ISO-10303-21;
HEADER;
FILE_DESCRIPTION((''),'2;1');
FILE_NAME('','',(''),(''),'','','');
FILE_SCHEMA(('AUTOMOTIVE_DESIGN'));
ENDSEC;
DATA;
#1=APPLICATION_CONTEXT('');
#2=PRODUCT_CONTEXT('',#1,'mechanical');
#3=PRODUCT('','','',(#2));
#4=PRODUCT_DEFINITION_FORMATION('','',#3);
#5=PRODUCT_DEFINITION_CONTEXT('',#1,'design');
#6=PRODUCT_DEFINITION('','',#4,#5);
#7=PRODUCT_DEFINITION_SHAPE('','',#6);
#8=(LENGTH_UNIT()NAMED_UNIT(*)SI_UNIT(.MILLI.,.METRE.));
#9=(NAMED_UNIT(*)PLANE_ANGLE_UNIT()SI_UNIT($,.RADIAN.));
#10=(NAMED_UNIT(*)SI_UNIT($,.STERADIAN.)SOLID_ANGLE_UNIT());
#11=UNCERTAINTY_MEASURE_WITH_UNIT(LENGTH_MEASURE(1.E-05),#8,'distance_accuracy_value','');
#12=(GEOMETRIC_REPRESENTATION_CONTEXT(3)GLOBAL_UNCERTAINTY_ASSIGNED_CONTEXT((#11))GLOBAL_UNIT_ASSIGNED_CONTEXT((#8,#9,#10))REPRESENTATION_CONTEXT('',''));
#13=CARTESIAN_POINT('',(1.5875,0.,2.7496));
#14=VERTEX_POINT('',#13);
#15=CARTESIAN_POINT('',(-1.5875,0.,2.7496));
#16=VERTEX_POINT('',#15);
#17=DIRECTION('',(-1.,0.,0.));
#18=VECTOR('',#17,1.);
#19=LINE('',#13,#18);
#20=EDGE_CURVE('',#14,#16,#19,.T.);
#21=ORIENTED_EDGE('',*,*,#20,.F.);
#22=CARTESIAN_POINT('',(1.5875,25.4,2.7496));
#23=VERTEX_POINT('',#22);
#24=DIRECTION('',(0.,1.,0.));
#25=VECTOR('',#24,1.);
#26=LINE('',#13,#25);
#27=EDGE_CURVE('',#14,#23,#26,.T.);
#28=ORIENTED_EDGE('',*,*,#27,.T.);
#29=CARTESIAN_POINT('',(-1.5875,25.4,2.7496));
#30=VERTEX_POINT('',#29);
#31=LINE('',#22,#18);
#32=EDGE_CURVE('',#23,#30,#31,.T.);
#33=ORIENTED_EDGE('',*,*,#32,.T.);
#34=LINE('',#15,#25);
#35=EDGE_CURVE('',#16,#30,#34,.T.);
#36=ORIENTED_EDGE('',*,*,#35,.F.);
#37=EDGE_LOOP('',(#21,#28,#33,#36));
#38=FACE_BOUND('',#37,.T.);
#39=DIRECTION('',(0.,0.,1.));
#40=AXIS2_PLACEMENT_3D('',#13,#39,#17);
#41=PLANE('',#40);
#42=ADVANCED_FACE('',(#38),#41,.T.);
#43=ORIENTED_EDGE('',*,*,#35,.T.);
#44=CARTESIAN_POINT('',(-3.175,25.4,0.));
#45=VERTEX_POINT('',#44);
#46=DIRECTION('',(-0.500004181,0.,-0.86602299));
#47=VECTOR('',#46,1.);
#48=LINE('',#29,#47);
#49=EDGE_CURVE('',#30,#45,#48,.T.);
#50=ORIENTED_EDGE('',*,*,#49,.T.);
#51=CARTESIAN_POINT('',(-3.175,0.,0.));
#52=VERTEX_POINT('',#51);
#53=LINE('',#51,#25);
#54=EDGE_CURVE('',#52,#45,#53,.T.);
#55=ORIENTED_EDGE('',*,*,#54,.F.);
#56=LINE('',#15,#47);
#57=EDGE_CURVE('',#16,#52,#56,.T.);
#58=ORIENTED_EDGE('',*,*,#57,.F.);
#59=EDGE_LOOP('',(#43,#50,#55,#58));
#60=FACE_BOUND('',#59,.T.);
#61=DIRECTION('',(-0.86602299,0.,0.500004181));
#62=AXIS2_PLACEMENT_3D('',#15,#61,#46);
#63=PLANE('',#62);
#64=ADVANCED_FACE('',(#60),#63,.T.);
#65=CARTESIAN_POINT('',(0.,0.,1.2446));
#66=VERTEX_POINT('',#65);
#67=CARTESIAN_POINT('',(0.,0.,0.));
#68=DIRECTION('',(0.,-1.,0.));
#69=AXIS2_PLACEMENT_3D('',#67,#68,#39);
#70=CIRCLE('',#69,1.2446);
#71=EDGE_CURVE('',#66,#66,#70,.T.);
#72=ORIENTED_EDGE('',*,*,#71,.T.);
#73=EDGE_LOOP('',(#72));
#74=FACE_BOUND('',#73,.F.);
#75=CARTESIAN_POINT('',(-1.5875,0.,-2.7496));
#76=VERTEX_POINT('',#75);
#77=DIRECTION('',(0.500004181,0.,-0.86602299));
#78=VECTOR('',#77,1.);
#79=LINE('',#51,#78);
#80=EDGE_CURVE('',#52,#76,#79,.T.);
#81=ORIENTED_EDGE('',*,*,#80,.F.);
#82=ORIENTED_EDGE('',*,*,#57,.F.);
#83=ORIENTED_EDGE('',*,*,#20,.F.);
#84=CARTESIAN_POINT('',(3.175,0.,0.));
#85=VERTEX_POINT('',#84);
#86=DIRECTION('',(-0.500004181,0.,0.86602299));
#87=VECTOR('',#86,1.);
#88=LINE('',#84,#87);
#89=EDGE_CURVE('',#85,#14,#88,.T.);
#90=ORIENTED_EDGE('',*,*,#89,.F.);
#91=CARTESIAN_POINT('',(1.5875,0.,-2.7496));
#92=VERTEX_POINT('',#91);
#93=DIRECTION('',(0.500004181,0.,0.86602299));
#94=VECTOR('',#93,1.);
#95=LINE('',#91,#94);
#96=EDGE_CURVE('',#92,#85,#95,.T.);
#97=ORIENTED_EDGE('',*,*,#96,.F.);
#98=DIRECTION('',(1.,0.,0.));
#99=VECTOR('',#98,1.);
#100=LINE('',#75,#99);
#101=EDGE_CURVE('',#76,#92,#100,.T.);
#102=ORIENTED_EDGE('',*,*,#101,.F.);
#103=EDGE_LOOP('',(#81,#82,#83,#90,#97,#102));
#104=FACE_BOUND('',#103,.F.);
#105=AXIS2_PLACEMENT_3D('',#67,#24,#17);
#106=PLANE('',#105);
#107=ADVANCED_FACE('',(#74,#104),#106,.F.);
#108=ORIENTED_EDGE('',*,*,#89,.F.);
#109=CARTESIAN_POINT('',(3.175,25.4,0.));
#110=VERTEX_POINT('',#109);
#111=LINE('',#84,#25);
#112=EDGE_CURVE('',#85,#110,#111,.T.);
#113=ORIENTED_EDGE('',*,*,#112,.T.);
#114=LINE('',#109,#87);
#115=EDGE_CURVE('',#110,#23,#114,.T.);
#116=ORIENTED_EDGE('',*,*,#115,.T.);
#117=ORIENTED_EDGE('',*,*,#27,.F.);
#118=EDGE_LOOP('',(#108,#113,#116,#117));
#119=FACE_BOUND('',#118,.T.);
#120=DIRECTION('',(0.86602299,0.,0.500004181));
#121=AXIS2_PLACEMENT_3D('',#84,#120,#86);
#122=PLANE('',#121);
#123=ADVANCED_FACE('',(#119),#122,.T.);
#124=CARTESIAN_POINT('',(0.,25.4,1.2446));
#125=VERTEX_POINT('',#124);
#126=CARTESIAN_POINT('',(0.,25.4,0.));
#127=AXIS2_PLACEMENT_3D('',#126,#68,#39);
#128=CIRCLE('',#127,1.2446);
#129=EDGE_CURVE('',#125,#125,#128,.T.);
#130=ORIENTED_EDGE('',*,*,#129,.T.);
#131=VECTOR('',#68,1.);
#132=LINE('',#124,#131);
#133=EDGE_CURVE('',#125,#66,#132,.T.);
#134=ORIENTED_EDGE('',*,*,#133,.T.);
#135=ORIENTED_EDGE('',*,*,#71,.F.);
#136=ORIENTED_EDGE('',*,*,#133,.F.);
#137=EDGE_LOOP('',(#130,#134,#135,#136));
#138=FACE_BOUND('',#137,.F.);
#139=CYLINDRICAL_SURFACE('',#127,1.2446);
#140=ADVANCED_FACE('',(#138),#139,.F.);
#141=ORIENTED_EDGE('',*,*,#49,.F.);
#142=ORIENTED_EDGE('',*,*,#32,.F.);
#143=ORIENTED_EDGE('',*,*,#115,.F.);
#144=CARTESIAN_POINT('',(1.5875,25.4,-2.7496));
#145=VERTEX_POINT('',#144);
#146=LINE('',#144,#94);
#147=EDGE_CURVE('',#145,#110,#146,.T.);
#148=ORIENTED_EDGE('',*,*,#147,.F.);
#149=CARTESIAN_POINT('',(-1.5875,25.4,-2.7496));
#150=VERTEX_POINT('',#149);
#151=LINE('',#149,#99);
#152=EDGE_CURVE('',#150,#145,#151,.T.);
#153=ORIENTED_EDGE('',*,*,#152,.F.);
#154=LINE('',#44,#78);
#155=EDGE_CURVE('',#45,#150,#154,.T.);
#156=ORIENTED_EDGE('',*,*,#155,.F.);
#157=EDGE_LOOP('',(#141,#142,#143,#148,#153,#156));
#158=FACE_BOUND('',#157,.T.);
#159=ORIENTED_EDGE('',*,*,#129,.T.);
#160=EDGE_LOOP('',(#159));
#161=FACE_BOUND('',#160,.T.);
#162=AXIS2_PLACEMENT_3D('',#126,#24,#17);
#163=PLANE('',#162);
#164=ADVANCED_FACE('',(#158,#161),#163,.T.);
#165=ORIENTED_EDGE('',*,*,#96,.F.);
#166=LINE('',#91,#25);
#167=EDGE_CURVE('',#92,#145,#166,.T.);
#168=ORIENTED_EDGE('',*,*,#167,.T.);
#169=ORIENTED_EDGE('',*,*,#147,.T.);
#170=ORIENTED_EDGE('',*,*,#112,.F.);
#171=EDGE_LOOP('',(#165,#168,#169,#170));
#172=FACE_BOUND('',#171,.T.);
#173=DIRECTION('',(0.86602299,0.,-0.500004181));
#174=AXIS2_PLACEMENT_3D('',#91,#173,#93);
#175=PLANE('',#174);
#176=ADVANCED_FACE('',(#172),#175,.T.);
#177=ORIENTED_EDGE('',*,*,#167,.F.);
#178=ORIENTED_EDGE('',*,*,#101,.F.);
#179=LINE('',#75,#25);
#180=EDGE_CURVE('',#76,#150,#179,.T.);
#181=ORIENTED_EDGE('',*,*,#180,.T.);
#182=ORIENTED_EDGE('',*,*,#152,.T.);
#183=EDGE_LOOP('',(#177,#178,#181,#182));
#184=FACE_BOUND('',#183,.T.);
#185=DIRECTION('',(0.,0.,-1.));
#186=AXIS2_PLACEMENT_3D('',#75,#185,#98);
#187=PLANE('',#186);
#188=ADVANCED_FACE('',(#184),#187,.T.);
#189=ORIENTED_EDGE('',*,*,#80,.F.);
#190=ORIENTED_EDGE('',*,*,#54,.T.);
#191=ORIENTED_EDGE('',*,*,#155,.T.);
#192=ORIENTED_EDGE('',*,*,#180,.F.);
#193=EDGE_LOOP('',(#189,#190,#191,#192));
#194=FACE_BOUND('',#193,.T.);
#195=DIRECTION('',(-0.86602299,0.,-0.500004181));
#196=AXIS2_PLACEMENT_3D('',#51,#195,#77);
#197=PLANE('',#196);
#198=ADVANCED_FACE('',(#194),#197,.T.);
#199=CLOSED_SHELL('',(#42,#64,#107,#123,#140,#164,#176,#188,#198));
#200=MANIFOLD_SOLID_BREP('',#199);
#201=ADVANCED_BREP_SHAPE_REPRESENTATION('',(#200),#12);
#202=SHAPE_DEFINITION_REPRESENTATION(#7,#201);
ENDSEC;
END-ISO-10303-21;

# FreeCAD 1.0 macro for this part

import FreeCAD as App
import Part
import Sketcher
Q = App.Units.Quantity

doc = App.newDocument("Part")
body = doc.addObject("PartDesign::Body", "Body")

sketch1 = body.newObject("Sketcher::SketchObject", "Sketch")
sketch1.AttachmentSupport = (doc.getObject("XZ_Plane"), [""])
sketch1.MapMode = "FlatFace"
sketch1.addGeometry([
    Part.LineSegment(App.Vector(-1.5875, -2.7496, 0), App.Vector(-3.175, 0, 0)),
    Part.LineSegment(App.Vector(-3.175, 0, 0), App.Vector(-1.5875, 2.7496, 0)),
    Part.LineSegment(App.Vector(-1.5875, 2.7496, 0), App.Vector(1.5875, 2.7496, 0)),
    Part.LineSegment(App.Vector(1.5875, 2.7496, 0), App.Vector(3.175, 0, 0)),
    Part.LineSegment(App.Vector(3.175, 0, 0), App.Vector(1.5875, -2.7496, 0)),
    Part.LineSegment(App.Vector(1.5875, -2.7496, 0), App.Vector(-1.5875, -2.7496, 0)),
], False)
sketch1.addConstraint([
    Sketcher.Constraint("Coincident", 0, 2, 1, 1),
    Sketcher.Constraint("Coincident", 1, 2, 2, 1),
    Sketcher.Constraint("Coincident", 2, 2, 3, 1),
    Sketcher.Constraint("Coincident", 3, 2, 4, 1),
    Sketcher.Constraint("Coincident", 4, 2, 5, 1),
    Sketcher.Constraint("Coincident", 5, 2, 0, 1),
    Sketcher.Constraint("Horizontal", 2),
    Sketcher.Constraint("Horizontal", 5),
    Sketcher.Constraint("Symmetric", 0, 2, 3, 2, -1, 1),
    Sketcher.Constraint("Symmetric", 1, 2, 4, 2, -1, 1),
    Sketcher.Constraint("PointOnObject", 0, 2, -1),
    Sketcher.Constraint("Parallel", 0, 3),
    Sketcher.Constraint("Vertical", 2, 2, 4, 2),
    Sketcher.Constraint("DistanceX", 0, 2, 3, 2, Q("0.25 in")),
    Sketcher.Constraint("Angle", 0, Q("120.0003 deg")),
    Sketcher.Constraint("DistanceX", 2, 1, 2, 2, Q("0.125 in")),
])
pad1 = body.newObject("PartDesign::Pad", "Pad")
pad1.Profile = sketch1
pad1.Length = Q("1 in")
pad1.Reversed = True

sketch2 = body.newObject("Sketcher::SketchObject", "Sketch001")
sketch2.AttachmentSupport = (doc.getObject("XZ_Plane"), [""])
sketch2.MapMode = "FlatFace"
sketch2.AttachmentOffset = App.Placement(App.Vector(0, 0, -1 * 25.4), App.Rotation())
sketch2.addGeometry(Part.Circle(App.Vector(0, 0, 0), App.Vector(0, 0, 1), 1.2446), False)
sketch2.addConstraint([
    Sketcher.Constraint("Coincident", 0, 3, -1, 1),
    Sketcher.Constraint("Diameter", 0, Q("0.098 in")),
])
doc.recompute()
hole = body.newObject("PartDesign::Hole", "Hole")
hole.Profile = sketch2
hole.ThreadType = "None"
hole.Diameter = Q("0.098 in")
hole.DepthType = "ThroughAll"
hole.Reversed = True

doc.recompute()
